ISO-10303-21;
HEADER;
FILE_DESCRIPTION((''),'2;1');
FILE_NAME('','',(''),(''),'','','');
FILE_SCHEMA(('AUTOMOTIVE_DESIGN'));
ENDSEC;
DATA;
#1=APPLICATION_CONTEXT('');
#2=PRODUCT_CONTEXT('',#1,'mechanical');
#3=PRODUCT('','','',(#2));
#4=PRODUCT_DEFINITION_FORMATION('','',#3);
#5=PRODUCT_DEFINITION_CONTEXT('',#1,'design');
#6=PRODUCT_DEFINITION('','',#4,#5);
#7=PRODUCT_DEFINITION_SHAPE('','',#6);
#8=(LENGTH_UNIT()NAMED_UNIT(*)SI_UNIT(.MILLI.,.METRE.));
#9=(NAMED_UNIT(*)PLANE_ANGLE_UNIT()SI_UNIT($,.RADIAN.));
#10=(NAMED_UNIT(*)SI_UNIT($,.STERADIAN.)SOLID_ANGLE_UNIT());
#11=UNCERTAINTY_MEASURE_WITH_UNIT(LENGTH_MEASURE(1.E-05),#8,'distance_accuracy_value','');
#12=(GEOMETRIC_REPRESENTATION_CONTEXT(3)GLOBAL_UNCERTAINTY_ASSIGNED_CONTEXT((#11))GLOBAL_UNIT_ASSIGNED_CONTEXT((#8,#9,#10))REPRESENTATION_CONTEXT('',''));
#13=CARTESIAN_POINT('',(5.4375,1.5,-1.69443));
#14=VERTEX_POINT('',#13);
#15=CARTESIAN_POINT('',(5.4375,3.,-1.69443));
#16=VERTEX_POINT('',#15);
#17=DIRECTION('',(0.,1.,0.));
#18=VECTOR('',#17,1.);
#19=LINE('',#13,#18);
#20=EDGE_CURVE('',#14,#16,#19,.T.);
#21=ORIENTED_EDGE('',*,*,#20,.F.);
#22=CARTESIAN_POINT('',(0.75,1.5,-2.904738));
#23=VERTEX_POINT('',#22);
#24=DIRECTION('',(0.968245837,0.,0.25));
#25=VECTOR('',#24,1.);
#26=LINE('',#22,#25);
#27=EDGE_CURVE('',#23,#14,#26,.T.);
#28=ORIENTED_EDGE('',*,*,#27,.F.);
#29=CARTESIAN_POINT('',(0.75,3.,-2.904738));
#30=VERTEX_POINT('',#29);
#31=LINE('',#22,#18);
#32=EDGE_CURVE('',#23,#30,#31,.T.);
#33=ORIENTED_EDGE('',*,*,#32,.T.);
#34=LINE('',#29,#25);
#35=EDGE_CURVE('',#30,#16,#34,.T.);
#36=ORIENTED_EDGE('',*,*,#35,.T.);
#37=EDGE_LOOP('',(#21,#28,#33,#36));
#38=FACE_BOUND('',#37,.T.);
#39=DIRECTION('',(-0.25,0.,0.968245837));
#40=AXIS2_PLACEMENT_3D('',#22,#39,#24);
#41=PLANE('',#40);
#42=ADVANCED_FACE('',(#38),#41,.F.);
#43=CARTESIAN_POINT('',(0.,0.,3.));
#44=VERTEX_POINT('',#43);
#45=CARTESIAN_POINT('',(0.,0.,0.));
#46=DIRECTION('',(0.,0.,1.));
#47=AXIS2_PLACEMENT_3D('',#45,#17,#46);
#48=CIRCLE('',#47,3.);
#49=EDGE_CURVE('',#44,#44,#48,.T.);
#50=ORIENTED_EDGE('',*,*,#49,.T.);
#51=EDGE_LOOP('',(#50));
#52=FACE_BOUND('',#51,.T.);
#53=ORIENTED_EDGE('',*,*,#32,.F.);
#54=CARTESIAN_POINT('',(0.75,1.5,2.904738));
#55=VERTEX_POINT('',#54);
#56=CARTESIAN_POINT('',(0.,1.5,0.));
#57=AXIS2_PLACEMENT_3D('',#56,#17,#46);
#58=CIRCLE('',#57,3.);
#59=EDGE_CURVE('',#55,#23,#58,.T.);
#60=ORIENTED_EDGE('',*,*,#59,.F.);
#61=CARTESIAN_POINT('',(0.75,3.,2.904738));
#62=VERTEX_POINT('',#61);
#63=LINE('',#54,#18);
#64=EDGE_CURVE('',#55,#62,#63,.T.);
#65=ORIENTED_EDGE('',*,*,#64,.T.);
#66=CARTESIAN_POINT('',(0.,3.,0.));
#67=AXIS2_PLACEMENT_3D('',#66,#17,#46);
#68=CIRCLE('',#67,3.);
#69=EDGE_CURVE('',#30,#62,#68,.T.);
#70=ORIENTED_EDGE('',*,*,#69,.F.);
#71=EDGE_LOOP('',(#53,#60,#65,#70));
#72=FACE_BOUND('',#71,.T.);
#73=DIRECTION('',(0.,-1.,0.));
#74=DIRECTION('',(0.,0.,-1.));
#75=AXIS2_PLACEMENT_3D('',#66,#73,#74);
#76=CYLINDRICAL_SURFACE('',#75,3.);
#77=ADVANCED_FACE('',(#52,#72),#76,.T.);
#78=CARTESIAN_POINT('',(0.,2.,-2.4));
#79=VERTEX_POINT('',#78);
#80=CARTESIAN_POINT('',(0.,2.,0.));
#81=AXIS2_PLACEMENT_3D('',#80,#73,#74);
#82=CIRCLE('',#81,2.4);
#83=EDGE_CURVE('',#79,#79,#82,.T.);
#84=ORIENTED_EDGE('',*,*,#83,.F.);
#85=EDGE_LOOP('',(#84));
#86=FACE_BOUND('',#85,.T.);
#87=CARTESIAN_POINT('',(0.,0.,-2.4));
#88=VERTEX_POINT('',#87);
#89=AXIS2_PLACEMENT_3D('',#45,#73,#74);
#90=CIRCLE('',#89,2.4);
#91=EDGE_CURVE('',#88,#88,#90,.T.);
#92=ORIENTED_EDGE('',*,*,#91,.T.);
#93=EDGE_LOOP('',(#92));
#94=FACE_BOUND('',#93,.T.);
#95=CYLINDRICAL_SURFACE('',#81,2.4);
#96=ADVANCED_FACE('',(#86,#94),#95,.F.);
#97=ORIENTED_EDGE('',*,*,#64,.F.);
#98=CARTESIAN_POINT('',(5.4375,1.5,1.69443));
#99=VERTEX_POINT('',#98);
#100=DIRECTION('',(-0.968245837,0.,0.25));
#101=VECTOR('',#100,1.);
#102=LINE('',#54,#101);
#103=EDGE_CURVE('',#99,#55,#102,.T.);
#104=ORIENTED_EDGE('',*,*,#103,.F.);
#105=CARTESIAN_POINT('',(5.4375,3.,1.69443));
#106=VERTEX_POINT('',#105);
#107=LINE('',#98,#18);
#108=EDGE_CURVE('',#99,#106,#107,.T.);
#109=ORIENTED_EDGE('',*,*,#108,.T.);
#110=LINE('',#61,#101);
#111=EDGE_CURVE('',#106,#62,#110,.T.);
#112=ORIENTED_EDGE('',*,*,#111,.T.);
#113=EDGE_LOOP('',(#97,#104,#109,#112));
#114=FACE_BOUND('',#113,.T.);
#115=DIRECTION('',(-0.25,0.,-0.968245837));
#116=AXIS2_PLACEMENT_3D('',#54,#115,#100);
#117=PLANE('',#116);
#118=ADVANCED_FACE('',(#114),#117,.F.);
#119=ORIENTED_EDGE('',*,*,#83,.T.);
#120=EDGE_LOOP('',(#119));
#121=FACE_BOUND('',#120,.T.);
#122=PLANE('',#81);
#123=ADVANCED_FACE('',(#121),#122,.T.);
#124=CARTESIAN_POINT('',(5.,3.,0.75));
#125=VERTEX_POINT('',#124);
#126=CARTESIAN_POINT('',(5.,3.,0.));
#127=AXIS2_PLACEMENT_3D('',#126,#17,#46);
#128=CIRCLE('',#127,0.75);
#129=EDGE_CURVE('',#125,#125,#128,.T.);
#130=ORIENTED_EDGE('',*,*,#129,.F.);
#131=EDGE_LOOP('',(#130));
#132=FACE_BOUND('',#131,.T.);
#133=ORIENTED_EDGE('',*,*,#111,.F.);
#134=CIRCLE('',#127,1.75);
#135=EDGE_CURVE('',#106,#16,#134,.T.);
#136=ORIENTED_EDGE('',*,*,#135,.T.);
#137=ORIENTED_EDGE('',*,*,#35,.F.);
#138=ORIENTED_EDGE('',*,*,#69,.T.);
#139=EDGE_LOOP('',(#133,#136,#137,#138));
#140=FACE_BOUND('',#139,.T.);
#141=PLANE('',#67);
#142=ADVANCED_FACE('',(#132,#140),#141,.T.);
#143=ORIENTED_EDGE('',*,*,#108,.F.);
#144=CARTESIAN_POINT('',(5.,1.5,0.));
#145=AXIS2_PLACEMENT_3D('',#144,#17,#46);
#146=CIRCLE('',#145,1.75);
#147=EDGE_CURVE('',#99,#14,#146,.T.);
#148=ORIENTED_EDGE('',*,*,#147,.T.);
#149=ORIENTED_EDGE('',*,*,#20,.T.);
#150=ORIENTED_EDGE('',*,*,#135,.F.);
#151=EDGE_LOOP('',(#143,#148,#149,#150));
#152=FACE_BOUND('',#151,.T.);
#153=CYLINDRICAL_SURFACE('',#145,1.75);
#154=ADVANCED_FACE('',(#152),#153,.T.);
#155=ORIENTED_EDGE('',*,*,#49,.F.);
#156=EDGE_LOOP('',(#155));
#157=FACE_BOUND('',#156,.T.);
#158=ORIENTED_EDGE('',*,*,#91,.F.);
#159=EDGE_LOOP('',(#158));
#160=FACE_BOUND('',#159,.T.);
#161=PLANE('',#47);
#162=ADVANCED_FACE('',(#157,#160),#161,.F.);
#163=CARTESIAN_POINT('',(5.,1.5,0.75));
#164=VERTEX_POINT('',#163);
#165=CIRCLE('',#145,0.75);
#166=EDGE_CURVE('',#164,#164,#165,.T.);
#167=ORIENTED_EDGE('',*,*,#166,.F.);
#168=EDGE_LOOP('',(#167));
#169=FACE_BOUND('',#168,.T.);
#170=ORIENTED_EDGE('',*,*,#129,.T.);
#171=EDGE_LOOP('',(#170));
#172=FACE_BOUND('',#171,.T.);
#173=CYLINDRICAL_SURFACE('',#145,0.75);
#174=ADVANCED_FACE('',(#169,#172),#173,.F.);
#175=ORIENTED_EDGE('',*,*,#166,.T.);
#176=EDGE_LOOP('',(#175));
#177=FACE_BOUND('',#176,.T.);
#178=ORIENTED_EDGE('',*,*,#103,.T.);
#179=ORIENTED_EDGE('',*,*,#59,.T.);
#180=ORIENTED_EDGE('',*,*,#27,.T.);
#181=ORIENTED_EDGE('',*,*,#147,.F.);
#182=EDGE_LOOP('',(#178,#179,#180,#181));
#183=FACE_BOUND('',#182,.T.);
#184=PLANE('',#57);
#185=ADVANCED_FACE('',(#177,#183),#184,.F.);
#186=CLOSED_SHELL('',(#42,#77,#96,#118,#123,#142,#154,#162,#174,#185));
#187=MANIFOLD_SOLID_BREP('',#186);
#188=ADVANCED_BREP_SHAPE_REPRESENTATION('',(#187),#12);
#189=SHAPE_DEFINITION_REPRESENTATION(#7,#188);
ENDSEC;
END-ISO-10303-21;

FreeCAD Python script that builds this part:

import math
import FreeCAD as App
import Part
import Sketcher

V = App.Vector

doc = App.newDocument("Part")
body = doc.addObject("PartDesign::Body", "Body")

sketch1 = body.newObject("Sketcher::SketchObject", "Sketch")
sketch1.AttachmentSupport = (doc.getObject("XZ_Plane"), [""])
sketch1.MapMode = "FlatFace"
sketch1.addGeometry(Part.Circle(V(0, 0, 0), V(0, 0, 1), 3), False)
sketch1.addConstraint([
    Sketcher.Constraint("Coincident", 0, 3, -1, 1),
    Sketcher.Constraint("Diameter", 0, 6.0),
])
pad1 = body.newObject("PartDesign::Pad", "Pad")
pad1.Profile = sketch1
pad1.Length = 3
pad1.Reversed = True

sketch2 = body.newObject("Sketcher::SketchObject", "Sketch001")
sketch2.AttachmentSupport = (doc.getObject("XZ_Plane"), [""])
sketch2.MapMode = "FlatFace"
sketch2.AttachmentOffset = App.Placement(V(0, 0, -1.5), App.Rotation())
sketch2.addGeometry([
    Part.LineSegment(V(5.4, -1.7, 0), V(0.8, -2.9, 0)),
    Part.ArcOfCircle(Part.Circle(V(0, 0, 0), V(0, 0, 1), 3), math.radians(-76), math.radians(0)),
    Part.ArcOfCircle(Part.Circle(V(0, 0, 0), V(0, 0, 1), 3), math.radians(0), math.radians(76)),
    Part.LineSegment(V(0.8, 2.9, 0), V(5.4, 1.7, 0)),
    Part.ArcOfCircle(Part.Circle(V(5, 0, 0), V(0, 0, 1), 1.8), math.radians(-76), math.radians(76)),
    Part.Circle(V(5, 0, 0), V(0, 0, 1), 0.8),
], False)
sketch2.addConstraint([
    Sketcher.Constraint("Tangent", 0, 2, 1, 1),
    Sketcher.Constraint("Tangent", 1, 2, 2, 1),
    Sketcher.Constraint("Tangent", 2, 2, 3, 1),
    Sketcher.Constraint("Tangent", 3, 2, 4, 2),
    Sketcher.Constraint("Tangent", 4, 1, 0, 1),
    Sketcher.Constraint("Coincident", 1, 3, -1, 1),
    Sketcher.Constraint("Coincident", 5, 3, 4, 3),
    Sketcher.Constraint("Equal", 1, 2),
    Sketcher.Constraint("PointOnObject", 4, 3, -1),
    Sketcher.Constraint("PointOnObject", 1, 2, -1),
    Sketcher.Constraint("Radius", 1, 3.0),
    Sketcher.Constraint("Diameter", 5, 1.5),
    Sketcher.Constraint("Radius", 4, 1.75),
    Sketcher.Constraint("DistanceX", -1, 1, 4, 3, 5.0),
])
pad2 = body.newObject("PartDesign::Pad", "Pad001")
pad2.Profile = sketch2
pad2.Length = 1.5
pad2.Reversed = True

sketch3 = body.newObject("Sketcher::SketchObject", "Sketch002")
sketch3.AttachmentSupport = (doc.getObject("XZ_Plane"), [""])
sketch3.MapMode = "FlatFace"
sketch3.addGeometry(Part.Circle(V(0, 0, 0), V(0, 0, 1), 2.4), False)
sketch3.addConstraint([
    Sketcher.Constraint("Coincident", 0, 3, -1, 1),
    Sketcher.Constraint("Diameter", 0, 4.8),
])
pocket1 = body.newObject("PartDesign::Pocket", "Pocket")
pocket1.Profile = sketch3
pocket1.Length = 2

doc.recompute()
